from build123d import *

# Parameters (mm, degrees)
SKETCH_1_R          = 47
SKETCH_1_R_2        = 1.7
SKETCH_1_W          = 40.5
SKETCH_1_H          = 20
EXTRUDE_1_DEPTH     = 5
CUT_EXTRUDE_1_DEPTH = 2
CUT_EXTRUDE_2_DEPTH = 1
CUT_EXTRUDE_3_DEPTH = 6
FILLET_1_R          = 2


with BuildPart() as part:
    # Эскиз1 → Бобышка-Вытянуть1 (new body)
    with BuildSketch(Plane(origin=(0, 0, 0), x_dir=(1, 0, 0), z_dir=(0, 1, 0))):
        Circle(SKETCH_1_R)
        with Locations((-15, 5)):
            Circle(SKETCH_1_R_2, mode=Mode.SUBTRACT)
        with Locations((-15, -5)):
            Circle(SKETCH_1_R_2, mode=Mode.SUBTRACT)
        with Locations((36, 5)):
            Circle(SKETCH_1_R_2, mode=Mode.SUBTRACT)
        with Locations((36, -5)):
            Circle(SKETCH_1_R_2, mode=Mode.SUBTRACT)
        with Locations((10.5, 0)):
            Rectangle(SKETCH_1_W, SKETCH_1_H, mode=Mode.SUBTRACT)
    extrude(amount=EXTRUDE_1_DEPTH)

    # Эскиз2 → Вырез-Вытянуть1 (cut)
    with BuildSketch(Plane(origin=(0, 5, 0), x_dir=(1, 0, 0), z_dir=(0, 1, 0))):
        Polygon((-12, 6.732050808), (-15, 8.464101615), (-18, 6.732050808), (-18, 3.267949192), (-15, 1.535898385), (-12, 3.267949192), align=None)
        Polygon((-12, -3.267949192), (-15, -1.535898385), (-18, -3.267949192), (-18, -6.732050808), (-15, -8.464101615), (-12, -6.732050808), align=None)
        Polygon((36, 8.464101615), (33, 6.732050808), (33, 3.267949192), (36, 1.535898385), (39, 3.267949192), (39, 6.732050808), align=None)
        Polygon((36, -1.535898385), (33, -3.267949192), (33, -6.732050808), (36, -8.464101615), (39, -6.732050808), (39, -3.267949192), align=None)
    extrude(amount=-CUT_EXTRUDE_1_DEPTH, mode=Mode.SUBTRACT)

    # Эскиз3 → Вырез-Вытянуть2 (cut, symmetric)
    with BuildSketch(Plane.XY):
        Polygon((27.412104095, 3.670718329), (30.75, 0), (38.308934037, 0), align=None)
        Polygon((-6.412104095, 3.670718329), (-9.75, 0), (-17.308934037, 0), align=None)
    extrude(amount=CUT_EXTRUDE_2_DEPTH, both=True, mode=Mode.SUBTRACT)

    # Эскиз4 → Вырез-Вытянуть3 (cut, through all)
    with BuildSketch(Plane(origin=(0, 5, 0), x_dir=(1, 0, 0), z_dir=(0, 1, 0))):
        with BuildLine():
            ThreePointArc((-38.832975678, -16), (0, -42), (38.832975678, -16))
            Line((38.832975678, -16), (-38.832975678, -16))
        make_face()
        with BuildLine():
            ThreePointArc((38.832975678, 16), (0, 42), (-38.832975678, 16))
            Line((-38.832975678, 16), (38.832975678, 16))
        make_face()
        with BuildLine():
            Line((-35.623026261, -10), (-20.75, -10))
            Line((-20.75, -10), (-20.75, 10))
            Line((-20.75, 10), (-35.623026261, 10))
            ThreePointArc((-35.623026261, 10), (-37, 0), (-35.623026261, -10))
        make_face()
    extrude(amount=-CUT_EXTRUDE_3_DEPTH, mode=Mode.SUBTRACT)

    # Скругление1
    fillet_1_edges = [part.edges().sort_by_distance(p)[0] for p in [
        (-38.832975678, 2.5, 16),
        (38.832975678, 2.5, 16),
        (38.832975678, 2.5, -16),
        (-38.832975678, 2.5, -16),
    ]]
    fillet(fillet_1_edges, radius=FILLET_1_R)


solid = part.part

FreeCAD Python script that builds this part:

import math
import FreeCAD as App
import Part
import Sketcher
from FreeCAD import Vector
Q = App.Units.Quantity


def edges_at(feature, points):
    """Names of the edges that pass closest to the given points."""
    edges = feature.Shape.Edges
    near = lambda p: min(range(len(edges)), key=lambda i: edges[i].distToShape(Part.Vertex(*p))[0])
    return sorted({f"Edge{near(p) + 1}" for p in points})


def add_polygon(sketch, points):
    """Adds a closed chain of lines whose ends are joined by coincident constraints."""
    first, n = sketch.GeometryCount, len(points)
    for a, b in zip(points, points[1:] + points[:1]):
        sketch.addGeometry(Part.LineSegment(App.Vector(*a, 0), App.Vector(*b, 0)), False)
    for i in range(n):
        sketch.addConstraint(Sketcher.Constraint("Coincident", first + i, 2, first + (i + 1) % n, 1))

doc = App.newDocument("Part")
body = doc.addObject("PartDesign::Body", "Body")

# Sketch on XZ plane
sketch1 = doc.addObject("Sketcher::SketchObject", "Sketch")
body.addObject(sketch1)
sketch1.AttachmentSupport = (doc.XZ_Plane, [""])
sketch1.MapMode = "FlatFace"
sketch1.addGeometry(Part.Circle(Vector(0, 0, 0), Vector(0, 0, 1), 47), False)  # 0
sketch1.addGeometry(Part.Circle(Vector(-15, 5, 0), Vector(0, 0, 1), 1.7), False)  # 1
sketch1.addGeometry(Part.Circle(Vector(36, 5, 0), Vector(0, 0, 1), 1.7), False)  # 2
sketch1.addGeometry(Part.Circle(Vector(-15, -5, 0), Vector(0, 0, 1), 1.7), False)  # 3
add_polygon(sketch1, [(30.75, 10), (-9.75, 10), (-9.75, -10), (30.75, -10)])  # lines 4-7
sketch1.addGeometry(Part.Circle(Vector(36, -5, 0), Vector(0, 0, 1), 1.7), False)  # 8
sketch1.addConstraint([
    Sketcher.Constraint("Horizontal", 4),
    Sketcher.Constraint("Vertical", 5),
    Sketcher.Constraint("Horizontal", 6),
    Sketcher.Constraint("Vertical", 7),
    Sketcher.Constraint("Coincident", 0, 3, -1, 1),
    Sketcher.Constraint("Equal", 1, 2),
    Sketcher.Constraint("Equal", 2, 3),
    Sketcher.Constraint("Equal", 3, 8),
    Sketcher.Constraint("Symmetric", 1, 3, 3, 3, -1),
    Sketcher.Constraint("Symmetric", 2, 3, 8, 3, -1),
    Sketcher.Constraint("Horizontal", 1, 3, 2, 3),
    Sketcher.Constraint("Diameter", 0, Q("94 mm")),
    Sketcher.Constraint("Diameter", 1, Q("3.4 mm")),
    Sketcher.Constraint("DistanceY", 5, 2, 5, 1, Q("20 mm")),
    Sketcher.Constraint("DistanceX", 4, 2, 4, 1, Q("40.5 mm")),
    Sketcher.Constraint("DistanceX", 1, 3, -1, 1, Q("15 mm")),
    Sketcher.Constraint("DistanceY", -1, 1, 1, 3, Q("5 mm")),
    Sketcher.Constraint("DistanceX", -1, 1, 2, 3, Q("36 mm")),
    Sketcher.Constraint("DistanceY", -1, 1, 4, 2, Q("10 mm")),
    Sketcher.Constraint("DistanceX", 4, 2, -1, 1, Q("9.75 mm")),
])
pad1 = doc.addObject("PartDesign::Pad", "Pad")
body.addObject(pad1)
pad1.Profile = sketch1
pad1.Length = 5
pad1.Reversed = True

# Sketch on XZ plane
sketch2 = doc.addObject("Sketcher::SketchObject", "Sketch001")
body.addObject(sketch2)
sketch2.AttachmentSupport = (doc.XZ_Plane, [""])
sketch2.MapMode = "FlatFace"
sketch2.AttachmentOffset = App.Placement(Vector(0, 0, -5), App.Rotation())
add_polygon(sketch2, [(-12, -6.732051), (-15, -8.464102), (-18, -6.732051), (-18, -3.267949), (-15, -1.535898), (-12, -3.267949)])  # lines 0-5
add_polygon(sketch2, [(-12, 3.267949), (-15, 1.535898), (-18, 3.267949), (-18, 6.732051), (-15, 8.464102), (-12, 6.732051)])  # lines 6-11
add_polygon(sketch2, [(36, -8.464102), (33, -6.732051), (33, -3.267949), (36, -1.535898), (39, -3.267949), (39, -6.732051)])  # lines 12-17
add_polygon(sketch2, [(36, 1.535898), (33, 3.267949), (33, 6.732051), (36, 8.464102), (39, 6.732051), (39, 3.267949)])  # lines 18-23
sketch2.addConstraint([
    Sketcher.Constraint("Vertical", 2),
    Sketcher.Constraint("Vertical", 5),
    Sketcher.Constraint("Vertical", 8),
    Sketcher.Constraint("Vertical", 11),
    Sketcher.Constraint("Vertical", 13),
    Sketcher.Constraint("Vertical", 16),
    Sketcher.Constraint("Vertical", 19),
    Sketcher.Constraint("Vertical", 22),
    Sketcher.Constraint("Symmetric", 3, 2, 6, 2, -1),
    Sketcher.Constraint("Symmetric", 2, 2, 7, 2, -1),
    Sketcher.Constraint("Symmetric", 0, 2, 9, 2, -1),
    Sketcher.Constraint("Symmetric", 5, 2, 10, 2, -1),
    Sketcher.Constraint("Symmetric", 13, 2, 18, 2, -1),
    Sketcher.Constraint("Symmetric", 17, 2, 20, 2, -1),
    Sketcher.Constraint("Symmetric", 16, 2, 21, 2, -1),
    Sketcher.Constraint("Symmetric", 14, 2, 23, 2, -1),
    Sketcher.Constraint("Parallel", 0, 3),
    Sketcher.Constraint("Parallel", 1, 4),
    Sketcher.Constraint("Parallel", 3, 6),
    Sketcher.Constraint("Parallel", 4, 7),
    Sketcher.Constraint("Parallel", 6, 9),
    Sketcher.Constraint("Parallel", 10, 12),
    Sketcher.Constraint("Parallel", 9, 14),
    Sketcher.Constraint("Parallel", 12, 15),
    Sketcher.Constraint("Parallel", 14, 17),
    Sketcher.Constraint("Parallel", 17, 20),
    Sketcher.Constraint("Parallel", 20, 23),
    Sketcher.Constraint("Horizontal", 2, 2, 4, 2),
    Sketcher.Constraint("Horizontal", 1, 2, 5, 2),
    Sketcher.Constraint("Horizontal", 5, 2, 12, 2),
    Sketcher.Constraint("Horizontal", 4, 2, 13, 2),
    Sketcher.Constraint("Horizontal", 3, 2, 14, 2),
    Sketcher.Constraint("Horizontal", 13, 2, 15, 2),
    Sketcher.Constraint("Horizontal", 12, 2, 16, 2),
    Sketcher.Constraint("Angle", 0, Q("-150 deg")),
    Sketcher.Constraint("DistanceX", 0, 2, -1, 1, Q("15 mm")),
    Sketcher.Constraint("DistanceX", 1, 2, -1, 1, Q("18 mm")),
    Sketcher.Constraint("DistanceX", -1, 1, 12, 2, Q("33 mm")),
    Sketcher.Constraint("DistanceY", 1, 2, 7, 2, Q("10 mm")),
    Sketcher.Constraint("DistanceY", 2, 1, 2, 2, Q("3.464102 mm")),
])
pocket1 = doc.addObject("PartDesign::Pocket", "Pocket")
body.addObject(pocket1)
pocket1.Profile = sketch2
pocket1.Length = 2
pocket1.Reversed = True

# Sketch on XY plane
sketch3 = doc.addObject("Sketcher::SketchObject", "Sketch002")
body.addObject(sketch3)
sketch3.AttachmentSupport = (doc.XY_Plane, [""])
sketch3.MapMode = "FlatFace"
add_polygon(sketch3, [(27.412104, 3.670718), (30.75, 0), (38.308934, 0)])  # lines 0-2
add_polygon(sketch3, [(-9.75, 0), (-6.412104, 3.670718), (-17.308934, 0)])  # lines 3-5
sketch3.addConstraint([
    Sketcher.Constraint("Horizontal", 1),
    Sketcher.Constraint("Horizontal", 5),
    Sketcher.Constraint("PointOnObject", 0, 2, -1),
    Sketcher.Constraint("PointOnObject", 4, 2, -1),
    Sketcher.Constraint("Horizontal", 2, 2, 3, 2),
    Sketcher.Constraint("Equal", 1, 5),
    Sketcher.Constraint("Equal", 0, 3),
    Sketcher.Constraint("DistanceX", 5, 2, 0, 2, Q("40.5 mm")),
    Sketcher.Constraint("DistanceX", -1, 1, 0, 2, Q("30.75 mm")),
    Sketcher.Constraint("Distance", 2, Q("11.498481 mm")),
    Sketcher.Constraint("DistanceX", 1, 1, 1, 2, Q("7.558934 mm")),
    Sketcher.Constraint("DistanceY", -1, 1, 2, 2, Q("3.670718 mm")),
])
pocket2 = doc.addObject("PartDesign::Pocket", "Pocket001")
body.addObject(pocket2)
pocket2.Profile = sketch3
pocket2.Length = 2
pocket2.Midplane = True

# Sketch on XZ plane
sketch4 = doc.addObject("Sketcher::SketchObject", "Sketch003")
body.addObject(sketch4)
sketch4.AttachmentSupport = (doc.XZ_Plane, [""])
sketch4.MapMode = "FlatFace"
sketch4.AttachmentOffset = App.Placement(Vector(0, 0, -5), App.Rotation())
sketch4.addGeometry([
    Part.ArcOfCircle(Part.Circle(Vector(0, 0, 0), Vector(0, 0, 1), 42), math.radians(22.392688), math.radians(157.607312)),  # 0
    Part.LineSegment(Vector(38.832976, 16, 0), Vector(-38.832976, 16, 0)),  # 1
    Part.ArcOfCircle(Part.Circle(Vector(0, 0, 0), Vector(0, 0, 1), 42), math.radians(-157.607312), math.radians(-22.392688)),  # 2
    Part.LineSegment(Vector(-38.832976, -16, 0), Vector(38.832976, -16, 0)),  # 3
    Part.LineSegment(Vector(-35.623026, 10, 0), Vector(-20.75, 10, 0)),  # 4
    Part.LineSegment(Vector(-20.75, 10, 0), Vector(-20.75, -10, 0)),  # 5
    Part.LineSegment(Vector(-20.75, -10, 0), Vector(-35.623026, -10, 0)),  # 6
    Part.ArcOfCircle(Part.Circle(Vector(0, 0, 0), Vector(0, 0, 1), 37), math.radians(164.31965), math.radians(195.68035)),  # 7
], False)
sketch4.addConstraint([
    Sketcher.Constraint("Coincident", 0, 1, 1, 1),
    Sketcher.Constraint("Coincident", 1, 2, 0, 2),
    Sketcher.Constraint("Coincident", 2, 1, 3, 1),
    Sketcher.Constraint("Coincident", 3, 2, 2, 2),
    Sketcher.Constraint("Coincident", 4, 2, 5, 1),
    Sketcher.Constraint("Coincident", 5, 2, 6, 1),
    Sketcher.Constraint("Coincident", 6, 2, 7, 2),
    Sketcher.Constraint("Coincident", 7, 1, 4, 1),
    Sketcher.Constraint("Horizontal", 1),
    Sketcher.Constraint("Horizontal", 3),
    Sketcher.Constraint("Horizontal", 4),
    Sketcher.Constraint("Vertical", 5),
    Sketcher.Constraint("Horizontal", 6),
    Sketcher.Constraint("Coincident", 0, 3, -1, 1),
    Sketcher.Constraint("Coincident", 2, 3, -1, 1),
    Sketcher.Constraint("Coincident", 7, 3, -1, 1),
    Sketcher.Constraint("Equal", 0, 2),
    Sketcher.Constraint("Vertical", 1, 2, 2, 1),
    Sketcher.Constraint("Vertical", 6, 2, 7, 1),
    Sketcher.Constraint("Radius", 0, Q("42 mm")),
    Sketcher.Constraint("Radius", 7, Q("37 mm")),
    Sketcher.Constraint("DistanceY", 5, 2, 5, 1, Q("20 mm")),
    Sketcher.Constraint("DistanceY", -1, 1, 0, 1, Q("16 mm")),
    Sketcher.Constraint("DistanceX", 4, 2, -1, 1, Q("20.75 mm")),
])
pocket3 = doc.addObject("PartDesign::Pocket", "Pocket002")
body.addObject(pocket3)
pocket3.Profile = sketch4
pocket3.Type = "ThroughAll"
pocket3.Reversed = True
doc.recompute()

fillet = doc.addObject("PartDesign::Fillet", "Fillet")
body.addObject(fillet)
fillet.Base = (pocket3, edges_at(pocket3, [
    (-38.833, 2.5, 16),
    (38.833, 2.5, 16),
    (38.833, 2.5, -16),
    (-38.833, 2.5, -16),
]))
fillet.Radius = 2

doc.recompute()
